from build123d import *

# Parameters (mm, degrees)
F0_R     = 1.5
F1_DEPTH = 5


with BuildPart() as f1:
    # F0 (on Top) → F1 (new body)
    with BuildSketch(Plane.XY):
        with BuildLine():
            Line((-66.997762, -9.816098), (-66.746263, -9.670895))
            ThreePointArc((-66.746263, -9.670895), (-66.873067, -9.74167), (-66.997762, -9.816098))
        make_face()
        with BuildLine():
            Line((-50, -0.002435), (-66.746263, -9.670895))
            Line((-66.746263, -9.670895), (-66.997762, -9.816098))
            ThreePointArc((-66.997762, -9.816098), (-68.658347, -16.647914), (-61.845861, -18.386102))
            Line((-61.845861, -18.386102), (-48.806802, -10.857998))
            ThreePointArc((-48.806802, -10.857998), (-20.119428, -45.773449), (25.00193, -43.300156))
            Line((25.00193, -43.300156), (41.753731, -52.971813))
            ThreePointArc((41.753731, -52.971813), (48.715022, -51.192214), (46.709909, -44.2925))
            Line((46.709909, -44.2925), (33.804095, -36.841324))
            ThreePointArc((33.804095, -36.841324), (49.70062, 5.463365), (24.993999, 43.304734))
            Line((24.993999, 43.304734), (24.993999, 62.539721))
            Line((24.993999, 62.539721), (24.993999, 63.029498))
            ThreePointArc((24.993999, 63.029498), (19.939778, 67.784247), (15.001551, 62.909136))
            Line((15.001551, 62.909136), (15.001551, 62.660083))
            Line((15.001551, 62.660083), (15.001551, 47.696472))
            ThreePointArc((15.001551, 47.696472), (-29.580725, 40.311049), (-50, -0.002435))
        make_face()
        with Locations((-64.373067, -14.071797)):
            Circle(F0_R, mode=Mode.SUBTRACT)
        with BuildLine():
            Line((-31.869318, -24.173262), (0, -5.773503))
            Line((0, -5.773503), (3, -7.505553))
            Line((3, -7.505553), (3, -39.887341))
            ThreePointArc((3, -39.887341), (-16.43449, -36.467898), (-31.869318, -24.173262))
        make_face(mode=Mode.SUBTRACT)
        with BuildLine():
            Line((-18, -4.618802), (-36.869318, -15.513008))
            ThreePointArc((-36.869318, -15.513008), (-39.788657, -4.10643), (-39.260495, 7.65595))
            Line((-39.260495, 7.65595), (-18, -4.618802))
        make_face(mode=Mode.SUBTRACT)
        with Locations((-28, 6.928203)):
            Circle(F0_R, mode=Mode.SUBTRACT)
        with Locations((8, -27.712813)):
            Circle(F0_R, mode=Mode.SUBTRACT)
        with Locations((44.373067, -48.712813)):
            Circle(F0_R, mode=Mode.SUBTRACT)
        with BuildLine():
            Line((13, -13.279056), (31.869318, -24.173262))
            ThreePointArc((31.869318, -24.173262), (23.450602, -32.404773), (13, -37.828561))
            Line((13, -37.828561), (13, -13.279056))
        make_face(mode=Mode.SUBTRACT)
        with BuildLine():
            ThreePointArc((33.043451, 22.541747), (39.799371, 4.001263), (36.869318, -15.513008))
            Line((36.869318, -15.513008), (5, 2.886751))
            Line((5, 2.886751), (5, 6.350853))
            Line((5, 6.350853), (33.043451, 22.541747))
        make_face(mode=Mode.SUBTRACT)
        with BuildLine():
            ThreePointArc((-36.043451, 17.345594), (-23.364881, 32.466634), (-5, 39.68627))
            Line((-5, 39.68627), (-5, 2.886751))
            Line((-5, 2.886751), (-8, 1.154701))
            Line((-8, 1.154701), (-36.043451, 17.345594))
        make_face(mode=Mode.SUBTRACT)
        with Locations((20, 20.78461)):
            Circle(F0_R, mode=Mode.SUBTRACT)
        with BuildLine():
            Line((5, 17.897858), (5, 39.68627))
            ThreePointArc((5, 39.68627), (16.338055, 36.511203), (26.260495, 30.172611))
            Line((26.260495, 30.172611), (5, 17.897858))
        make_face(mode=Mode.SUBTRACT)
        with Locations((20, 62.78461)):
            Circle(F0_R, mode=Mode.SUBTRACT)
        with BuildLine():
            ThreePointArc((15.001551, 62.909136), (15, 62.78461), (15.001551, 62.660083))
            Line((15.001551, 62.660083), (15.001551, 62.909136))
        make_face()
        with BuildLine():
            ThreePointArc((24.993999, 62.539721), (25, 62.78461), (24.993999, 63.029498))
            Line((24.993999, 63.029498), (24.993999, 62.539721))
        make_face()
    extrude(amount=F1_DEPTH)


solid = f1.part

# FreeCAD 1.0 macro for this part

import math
import FreeCAD as App
import Part
import Sketcher

doc = App.newDocument("Part")
body = doc.addObject("PartDesign::Body", "Body")

sketch1 = body.newObject("Sketcher::SketchObject", "Sketch")
sketch1.AttachmentSupport = (doc.getObject("XY_Plane"), [""])
sketch1.MapMode = "FlatFace"
sketch1.addGeometry([
    Part.ArcOfCircle(Part.Circle(App.Vector(-64.373315, -14.071368, 0), App.Vector(0, 0, 1), 4.999504), math.radians(118.335694), math.radians(121.6643)),
    Part.ArcOfCircle(Part.Circle(App.Vector(-64.373067, -14.071797, 0), App.Vector(0, 0, 1), 5), math.radians(121.664132), math.radians(300.360653)),
    Part.LineSegment(App.Vector(-61.845861, -18.386102, 0), App.Vector(-48.806802, -10.857998, 0)),
    Part.ArcOfCircle(Part.Circle(App.Vector(0, 0, 0), App.Vector(0, 0, 1), 50), math.radians(-167.457721), math.radians(-59.997446)),
    Part.LineSegment(App.Vector(25.00193, -43.300156, 0), App.Vector(41.753731, -52.971813, 0)),
    Part.ArcOfCircle(Part.Circle(App.Vector(44.373067, -48.712813, 0), App.Vector(0, 0, 1), 5), math.radians(-121.592017), math.radians(62.136393)),
    Part.LineSegment(App.Vector(46.709909, -44.2925, 0), App.Vector(33.804095, -36.841324, 0)),
    Part.ArcOfCircle(Part.Circle(App.Vector(0, 0, 0), App.Vector(0, 0, 1), 50), math.radians(-47.461777), math.radians(60.00794)),
    Part.LineSegment(App.Vector(24.993999, 43.304734, 0), App.Vector(24.993999, 62.539721, 0)),
    Part.ArcOfCircle(Part.Circle(App.Vector(20.000301, 62.78461, 0), App.Vector(0, 0, 1), 4.999699), math.radians(-2.807508), math.radians(2.807508)),
    Part.ArcOfCircle(Part.Circle(App.Vector(20, 62.78461, 0), App.Vector(0, 0, 1), 5), math.radians(2.807334), math.radians(178.572889)),
    Part.ArcOfCircle(Part.Circle(App.Vector(19.99976, 62.78461, 0), App.Vector(0, 0, 1), 4.99976), math.radians(178.572815), math.radians(181.427185)),
    Part.LineSegment(App.Vector(15.001551, 62.660083, 0), App.Vector(15.001551, 47.696472, 0)),
    Part.ArcOfCircle(Part.Circle(App.Vector(0, -0.000001, 0), App.Vector(0, 0, 1), 50), math.radians(72.540534), math.radians(180.00279)),
    Part.LineSegment(App.Vector(-50, -0.002435, 0), App.Vector(-66.746263, -9.670895, 0)),
    Part.ArcOfCircle(Part.Circle(App.Vector(-0.000003, -0.000004, 0), App.Vector(0, 0, 1), 39.999996), math.radians(-142.819247), math.radians(-85.698773)),
    Part.LineSegment(App.Vector(-31.869318, -24.173262, 0), App.Vector(0, -5.773503, 0)),
    Part.LineSegment(App.Vector(0, -5.773503, 0), App.Vector(3, -7.505553, 0)),
    Part.LineSegment(App.Vector(3, -7.505553, 0), App.Vector(3, -39.887341, 0)),
    Part.Circle(App.Vector(-64.373067, -14.071797, 0), App.Vector(0, 0, 1), 1.5),
    Part.LineSegment(App.Vector(-39.260495, 7.65595, 0), App.Vector(-18, -4.618802, 0)),
    Part.LineSegment(App.Vector(-18, -4.618802, 0), App.Vector(-36.869318, -15.513008, 0)),
    Part.ArcOfCircle(Part.Circle(App.Vector(0.000011, 0.000001, 0), App.Vector(0, 0, 1), 40.000011), math.radians(168.96558), math.radians(202.81924)),
    Part.Circle(App.Vector(-28, 6.928203, 0), App.Vector(0, 0, 1), 1.5),
    Part.Circle(App.Vector(8, -27.712813, 0), App.Vector(0, 0, 1), 1.5),
    Part.Circle(App.Vector(44.373067, -48.712813, 0), App.Vector(0, 0, 1), 1.5),
    Part.LineSegment(App.Vector(13, -37.828561, 0), App.Vector(13, -13.279056, 0)),
    Part.LineSegment(App.Vector(13, -13.279056, 0), App.Vector(31.869318, -24.173262, 0)),
    Part.ArcOfCircle(Part.Circle(App.Vector(0.000004, -0.000005, 0), App.Vector(0, 0, 1), 39.999995), math.radians(-71.034428), math.radians(-37.180753)),
    Part.LineSegment(App.Vector(5, 6.350853, 0), App.Vector(33.043451, 22.541747, 0)),
    Part.ArcOfCircle(Part.Circle(App.Vector(0.000002, 0, 0), App.Vector(0, 0, 1), 39.999999), math.radians(-22.819245), math.radians(34.301224)),
    Part.LineSegment(App.Vector(36.869318, -15.513008, 0), App.Vector(5, 2.886751, 0)),
    Part.LineSegment(App.Vector(5, 2.886751, 0), App.Vector(5, 6.350853, 0)),
    Part.LineSegment(App.Vector(-8, 1.154701, 0), App.Vector(-36.043451, 17.345594, 0)),
    Part.ArcOfCircle(Part.Circle(App.Vector(0.000002, -0.000002, 0), App.Vector(0, 0, 1), 40.000002), math.radians(97.180758), math.radians(154.301222)),
    Part.LineSegment(App.Vector(-5, 39.68627, 0), App.Vector(-5, 2.886751, 0)),
    Part.LineSegment(App.Vector(-5, 2.886751, 0), App.Vector(-8, 1.154701, 0)),
    Part.LineSegment(App.Vector(26.260495, 30.172611, 0), App.Vector(5, 17.897858, 0)),
    Part.LineSegment(App.Vector(5, 17.897858, 0), App.Vector(5, 39.68627, 0)),
    Part.ArcOfCircle(Part.Circle(App.Vector(-0.000006, -0.000014, 0), App.Vector(0, 0, 1), 40.000015), math.radians(48.965582), math.radians(82.819239)),
    Part.Circle(App.Vector(20, 20.78461, 0), App.Vector(0, 0, 1), 1.5),
    Part.Circle(App.Vector(20, 62.78461, 0), App.Vector(0, 0, 1), 1.5),
], False)
sketch1.addConstraint([
    Sketcher.Constraint("Coincident", 0, 2, 1, 1),
    Sketcher.Constraint("Coincident", 1, 2, 2, 1),
    Sketcher.Constraint("Coincident", 2, 2, 3, 1),
    Sketcher.Constraint("Coincident", 3, 2, 4, 1),
    Sketcher.Constraint("Coincident", 4, 2, 5, 1),
    Sketcher.Constraint("Coincident", 5, 2, 6, 1),
    Sketcher.Constraint("Coincident", 6, 2, 7, 1),
    Sketcher.Constraint("Coincident", 7, 2, 8, 1),
    Sketcher.Constraint("Coincident", 8, 2, 9, 1),
    Sketcher.Constraint("Coincident", 9, 2, 10, 1),
    Sketcher.Constraint("Coincident", 10, 2, 11, 1),
    Sketcher.Constraint("Coincident", 11, 2, 12, 1),
    Sketcher.Constraint("Coincident", 12, 2, 13, 1),
    Sketcher.Constraint("Coincident", 13, 2, 14, 1),
    Sketcher.Constraint("Coincident", 14, 2, 0, 1),
    Sketcher.Constraint("Coincident", 15, 1, 16, 1),
    Sketcher.Constraint("Coincident", 16, 2, 17, 1),
    Sketcher.Constraint("Coincident", 17, 2, 18, 1),
    Sketcher.Constraint("Coincident", 18, 2, 15, 2),
    Sketcher.Constraint("Coincident", 20, 2, 21, 1),
    Sketcher.Constraint("Coincident", 21, 2, 22, 2),
    Sketcher.Constraint("Coincident", 22, 1, 20, 1),
    Sketcher.Constraint("Coincident", 26, 2, 27, 1),
    Sketcher.Constraint("Coincident", 27, 2, 28, 2),
    Sketcher.Constraint("Coincident", 28, 1, 26, 1),
    Sketcher.Constraint("Coincident", 29, 2, 30, 2),
    Sketcher.Constraint("Coincident", 30, 1, 31, 1),
    Sketcher.Constraint("Coincident", 31, 2, 32, 1),
    Sketcher.Constraint("Coincident", 32, 2, 29, 1),
    Sketcher.Constraint("Coincident", 33, 2, 34, 2),
    Sketcher.Constraint("Coincident", 34, 1, 35, 1),
    Sketcher.Constraint("Coincident", 35, 2, 36, 1),
    Sketcher.Constraint("Coincident", 36, 2, 33, 1),
    Sketcher.Constraint("Coincident", 37, 2, 38, 1),
    Sketcher.Constraint("Coincident", 38, 2, 39, 2),
    Sketcher.Constraint("Coincident", 39, 1, 37, 1),
    Sketcher.Constraint("Vertical", 8),
    Sketcher.Constraint("Vertical", 12),
    Sketcher.Constraint("Vertical", 18),
    Sketcher.Constraint("Vertical", 26),
    Sketcher.Constraint("Vertical", 32),
    Sketcher.Constraint("Vertical", 35),
    Sketcher.Constraint("Vertical", 38),
    Sketcher.Constraint("Coincident", 3, 3, -1, 1),
    Sketcher.Constraint("Coincident", 7, 3, -1, 1),
    Sketcher.Constraint("Coincident", 13, 3, -1, 1),
    Sketcher.Constraint("Coincident", 15, 3, -1, 1),
    Sketcher.Constraint("Coincident", 28, 3, -1, 1),
    Sketcher.Constraint("Coincident", 30, 3, -1, 1),
    Sketcher.Constraint("Coincident", 34, 3, -1, 1),
    Sketcher.Constraint("Coincident", 19, 3, 1, 3),
    Sketcher.Constraint("Coincident", 25, 3, 5, 3),
    Sketcher.Constraint("Coincident", 41, 3, 10, 3),
    Sketcher.Constraint("PointOnObject", 22, 3, -1),
    Sketcher.Constraint("PointOnObject", 16, 2, -2),
    Sketcher.Constraint("Diameter", 19, 3.0),
    Sketcher.Constraint("Diameter", 23, 3.0),
    Sketcher.Constraint("Diameter", 24, 3.0),
    Sketcher.Constraint("Diameter", 25, 3.0),
    Sketcher.Constraint("Diameter", 40, 3.0),
    Sketcher.Constraint("Diameter", 41, 3.0),
    Sketcher.Constraint("Radius", 1, 5.0),
    Sketcher.Constraint("Radius", 3, 50.0),
    Sketcher.Constraint("Radius", 5, 5.0),
    Sketcher.Constraint("Radius", 7, 50.0),
    Sketcher.Constraint("Radius", 10, 5.0),
    Sketcher.Constraint("Radius", 13, 50.0),
    Sketcher.Constraint("Radius", 30, 39.999999),
    Sketcher.Constraint("DistanceX", -1, 1, 10, 3, 20.0),
    Sketcher.Constraint("DistanceX", 23, 3, -1, 1, 28.0),
    Sketcher.Constraint("DistanceX", -1, 1, 24, 3, 8.0),
    Sketcher.Constraint("DistanceX", -1, 1, 40, 3, 20.0),
    Sketcher.Constraint("DistanceX", -1, 1, 17, 2, 3.0),
    Sketcher.Constraint("DistanceX", 20, 2, -1, 1, 18.0),
    Sketcher.Constraint("DistanceX", -1, 1, 26, 2, 13.0),
    Sketcher.Constraint("DistanceX", -1, 1, 31, 2, 5.0),
    Sketcher.Constraint("DistanceX", 34, 1, -1, 1, 5.0),
    Sketcher.Constraint("DistanceX", 36, 2, -1, 1, 8.0),
    Sketcher.Constraint("DistanceX", -1, 1, 37, 2, 5.0),
    Sketcher.Constraint("DistanceY", 25, 3, 24, 3, 21.0),
    Sketcher.Constraint("DistanceY", 40, 3, 41, 3, 42.0),
    Sketcher.Constraint("DistanceX", 21, 2, 15, 1, 5.0),
    Sketcher.Constraint("DistanceX", 27, 2, 30, 1, 5.0),
    Sketcher.Constraint("Radius", 9, 4.999699),
    Sketcher.Constraint("Radius", 11, 4.99976),
    Sketcher.Constraint("Radius", 22, 40.000011),
    Sketcher.Constraint("DistanceY", 32, 1, 32, 2, 3.464102),
    Sketcher.Constraint("DistanceX", -1, 1, 7, 2, 24.993999),
    Sketcher.Constraint("DistanceX", -1, 1, 9, 2, 24.993999),
    Sketcher.Constraint("Radius", 0, 4.999504),
    Sketcher.Constraint("Radius", 15, 39.999996),
    Sketcher.Constraint("Radius", 28, 39.999995),
    Sketcher.Constraint("Radius", 34, 40.000002),
    Sketcher.Constraint("Radius", 39, 40.000015),
    Sketcher.Constraint("DistanceY", 4, 2, 5, 3, 4.259),
    Sketcher.Constraint("DistanceY", 40, 3, 39, 1, 9.388001),
    Sketcher.Constraint("Distance", 17, 3.464101),
    Sketcher.Constraint("Distance", 36, 3.464101),
    Sketcher.Constraint("DistanceY", 12, 2, 12, 1, 14.963611),
    Sketcher.Constraint("DistanceY", 35, 2, 35, 1, 36.799519),
    Sketcher.Constraint("DistanceX", -1, 1, 9, 3, 20.000301),
    Sketcher.Constraint("DistanceY", 0, 2, -1, 1, 9.816098),
    Sketcher.Constraint("DistanceX", 2, 2, -1, 1, 48.806802),
    Sketcher.Constraint("DistanceY", 5, 2, -1, 1, 44.2925),
    Sketcher.Constraint("DistanceY", -1, 1, 9, 2, 63.029498),
    Sketcher.Constraint("DistanceY", 20, 2, -1, 1, 4.618802),
    Sketcher.Constraint("DistanceY", 22, 3, 23, 3, 6.928202),
    Sketcher.Constraint("DistanceY", 1, 3, 0, 2, 4.255699),
    Sketcher.Constraint("DistanceX", 0, 2, 1, 2, 5.151901),
    Sketcher.Constraint("DistanceX", 3, 2, 4, 2, 16.751801),
    Sketcher.Constraint("DistanceY", 4, 2, 39, 3, 52.971799),
    Sketcher.Constraint("DistanceX", 0, 2, 14, 2, 0.251499),
    Sketcher.Constraint("DistanceY", 16, 2, 28, 3, 5.773498),
    Sketcher.Constraint("DistanceY", 28, 1, 27, 2, 13.655299),
    Sketcher.Constraint("DistanceX", 12, 2, 29, 2, 18.0419),
    Sketcher.Constraint("Distance", 2, 15.056208),
    Sketcher.Constraint("Distance", 6, 14.902351),
    Sketcher.Constraint("Distance", 14, 19.336919),
    Sketcher.Constraint("Distance", 16, 36.799518),
    Sketcher.Constraint("Distance", 21, 21.788412),
    Sketcher.Constraint("Distance", 27, 21.788412),
    Sketcher.Constraint("Distance", 31, 36.799518),
    Sketcher.Constraint("DistanceY", 38, 1, 38, 2, 21.788412),
    Sketcher.Constraint("DistanceX", -1, 1, 11, 3, 19.99976),
    Sketcher.Constraint("DistanceX", -1, 1, 3, 2, 25.00193),
    Sketcher.Constraint("DistanceX", -1, 1, 5, 2, 46.709909),
    Sketcher.Constraint("DistanceX", -1, 1, 10, 2, 15.001551),
    Sketcher.Constraint("DistanceY", -1, 1, 22, 1, 7.65595),
    Sketcher.Constraint("DistanceX", 33, 2, -1, 1, 36.043451),
    Sketcher.Constraint("DistanceY", -1, 1, 38, 2, 39.68627),
    Sketcher.Constraint("DistanceY", 1, 3, 0, 3, 0.00043),
])
pad1 = body.newObject("PartDesign::Pad", "Pad")
pad1.Profile = sketch1
pad1.Length = 5

doc.recompute()
